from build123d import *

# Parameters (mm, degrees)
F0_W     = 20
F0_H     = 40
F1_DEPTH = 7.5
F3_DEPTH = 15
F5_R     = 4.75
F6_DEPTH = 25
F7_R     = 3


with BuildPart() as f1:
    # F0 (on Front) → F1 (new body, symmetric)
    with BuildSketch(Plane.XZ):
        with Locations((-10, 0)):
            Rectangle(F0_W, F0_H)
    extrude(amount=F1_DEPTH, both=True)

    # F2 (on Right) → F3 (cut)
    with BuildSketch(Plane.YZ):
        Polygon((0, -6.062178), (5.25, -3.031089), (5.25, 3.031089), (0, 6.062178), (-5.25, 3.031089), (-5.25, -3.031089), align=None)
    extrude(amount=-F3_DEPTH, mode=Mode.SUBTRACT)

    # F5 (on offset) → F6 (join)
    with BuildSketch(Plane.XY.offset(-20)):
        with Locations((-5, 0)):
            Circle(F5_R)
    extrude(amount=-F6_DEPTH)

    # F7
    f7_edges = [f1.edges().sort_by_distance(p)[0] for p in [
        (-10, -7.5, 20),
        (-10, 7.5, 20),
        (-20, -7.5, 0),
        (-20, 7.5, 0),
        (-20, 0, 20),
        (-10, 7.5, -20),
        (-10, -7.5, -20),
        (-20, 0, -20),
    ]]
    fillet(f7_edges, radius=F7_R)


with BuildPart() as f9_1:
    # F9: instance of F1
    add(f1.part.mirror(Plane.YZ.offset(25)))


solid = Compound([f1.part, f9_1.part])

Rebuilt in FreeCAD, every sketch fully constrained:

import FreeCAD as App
import Part
import Sketcher

V = App.Vector
Q = App.Units.Quantity


def edges_at(feature, points):
    """Names of the edges that pass closest to the given points."""
    edges = feature.Shape.Edges
    near = lambda p: min(range(len(edges)), key=lambda i: edges[i].distToShape(Part.Vertex(*p))[0])
    return sorted({f"Edge{near(p) + 1}" for p in points})

doc = App.newDocument("Part")
params = doc.addObject("Spreadsheet::Sheet", "Params")
for row, (alias, value) in enumerate([
    ("sketch1_width", "20 mm"),
    ("sketch1_height", "40 mm"),
    ("pad1_length", "15 mm"),
    ("pocket1_length", "15 mm"),
    ("sketch3_diameter", "9.5 mm"),
    ("pad2_length", "25 mm"),
    ("fillet_radius", "3 mm"),
], start=1):
    params.set(f"A{row}", alias)
    params.set(f"B{row}", "=" + value)
    params.setAlias(f"B{row}", alias)

body = doc.addObject("PartDesign::Body", "Body")

# Sketch on XZ plane
sketch1 = body.newObject("Sketcher::SketchObject", "Sketch")
sketch1.AttachmentSupport = (doc.getObject("XZ_Plane"), [""])
sketch1.MapMode = "FlatFace"
sketch1.addGeometry([
    Part.LineSegment(V(-20, 20, 0), V(-20, -20, 0)),
    Part.LineSegment(V(-20, -20, 0), V(0, -20, 0)),
    Part.LineSegment(V(0, -20, 0), V(0, 20, 0)),
    Part.LineSegment(V(0, 20, 0), V(-20, 20, 0)),
], False)
sketch1.addConstraint([
    Sketcher.Constraint("Coincident", 0, 2, 1, 1),
    Sketcher.Constraint("Coincident", 1, 2, 2, 1),
    Sketcher.Constraint("Coincident", 2, 2, 3, 1),
    Sketcher.Constraint("Coincident", 3, 2, 0, 1),
    Sketcher.Constraint("Vertical", 0),
    Sketcher.Constraint("Horizontal", 1),
    Sketcher.Constraint("Vertical", 2),
    Sketcher.Constraint("Horizontal", 3),
    Sketcher.Constraint("Symmetric", 1, 2, 2, 2, -1, 1),
    Sketcher.Constraint("DistanceX", 1, 1, 1, 2, 20.0),
    Sketcher.Constraint("DistanceY", 0, 2, 0, 1, 40.0),
])
sketch1.setExpression("Constraints[9]", "Params.sketch1_width")
sketch1.setExpression("Constraints[10]", "Params.sketch1_height")
pad1 = body.newObject("PartDesign::Pad", "Pad")
pad1.Profile = sketch1
pad1.setExpression("Length", "Params.pad1_length")
pad1.Midplane = True

# Sketch on YZ plane
sketch2 = body.newObject("Sketcher::SketchObject", "Sketch001")
sketch2.AttachmentSupport = (doc.getObject("YZ_Plane"), [""])
sketch2.MapMode = "FlatFace"
sketch2.addGeometry([
    Part.LineSegment(V(0, -6, 0), V(5, -3, 0)),  # 0
    Part.LineSegment(V(5, -3, 0), V(5, 3, 0)),  # 1
    Part.LineSegment(V(5, 3, 0), V(0, 6, 0)),  # 2
    Part.LineSegment(V(0, 6, 0), V(-5, 3, 0)),  # 3
    Part.LineSegment(V(-5, 3, 0), V(-5, -3, 0)),  # 4
    Part.LineSegment(V(-5, -3, 0), V(0, -6, 0)),  # 5
], False)
sketch2.addConstraint([
    Sketcher.Constraint("Coincident", 0, 2, 1, 1),
    Sketcher.Constraint("Coincident", 1, 2, 2, 1),
    Sketcher.Constraint("Coincident", 2, 2, 3, 1),
    Sketcher.Constraint("Coincident", 3, 2, 4, 1),
    Sketcher.Constraint("Coincident", 4, 2, 5, 1),
    Sketcher.Constraint("Coincident", 5, 2, 0, 1),
    Sketcher.Constraint("Vertical", 1),
    Sketcher.Constraint("Vertical", 4),
    Sketcher.Constraint("Symmetric", 0, 2, 3, 2, -1, 1),
    Sketcher.Constraint("Symmetric", 2, 2, 5, 2, -1, 1),
    Sketcher.Constraint("PointOnObject", 2, 2, -2),
    Sketcher.Constraint("Parallel", 2, 5),
    Sketcher.Constraint("Horizontal", 1, 2, 3, 2),
    Sketcher.Constraint("Angle", 0, Q("30.000001 deg")),
    Sketcher.Constraint("DistanceX", 3, 2, 1, 2, 10.5),
    Sketcher.Constraint("DistanceY", 1, 1, 1, 2, 6.062178),
])
pocket1 = body.newObject("PartDesign::Pocket", "Pocket")
pocket1.Profile = sketch2
pocket1.setExpression("Length", "Params.pocket1_length")

# Sketch on XY plane
sketch3 = body.newObject("Sketcher::SketchObject", "Sketch002")
sketch3.AttachmentSupport = (doc.getObject("XY_Plane"), [""])
sketch3.MapMode = "FlatFace"
sketch3.AttachmentOffset = App.Placement(V(0, 0, -20), App.Rotation())
sketch3.addGeometry(Part.Circle(V(-5, 0, 0), V(0, 0, 1), 4.8), False)
sketch3.addConstraint([
    Sketcher.Constraint("PointOnObject", 0, 3, -1),
    Sketcher.Constraint("Diameter", 0, 9.5),
    Sketcher.Constraint("DistanceX", 0, 3, -1, 1, 5.0),
])
sketch3.setExpression("Constraints[1]", "Params.sketch3_diameter")
pad2 = body.newObject("PartDesign::Pad", "Pad001")
pad2.Profile = sketch3
pad2.setExpression("Length", "Params.pad2_length")
pad2.Reversed = True
doc.recompute()

fillet = body.newObject("PartDesign::Fillet", "Fillet")
fillet.Base = (pad2, edges_at(pad2, [
    (-10, -7.5, 20),
    (-10, 7.5, 20),
    (-20, -7.5, 0),
    (-20, 7.5, 0),
    (-20, 0, 20),
    (-10, 7.5, -20),
    (-10, -7.5, -20),
    (-20, 0, -20),
]))
fillet.setExpression("Radius", "Params.fillet_radius")
body2 = doc.addObject("PartDesign::Body", "Body001")
doc.recompute()

mirroring = doc.addObject("Part::Mirroring", "Mirroring")
mirroring.Source = body
mirroring.Base = V(25, 0, 0)
mirroring.Normal = V(1, 0, 0)
body2.BaseFeature = mirroring
doc.recompute()
mirroring.Visibility = False

doc.recompute()
